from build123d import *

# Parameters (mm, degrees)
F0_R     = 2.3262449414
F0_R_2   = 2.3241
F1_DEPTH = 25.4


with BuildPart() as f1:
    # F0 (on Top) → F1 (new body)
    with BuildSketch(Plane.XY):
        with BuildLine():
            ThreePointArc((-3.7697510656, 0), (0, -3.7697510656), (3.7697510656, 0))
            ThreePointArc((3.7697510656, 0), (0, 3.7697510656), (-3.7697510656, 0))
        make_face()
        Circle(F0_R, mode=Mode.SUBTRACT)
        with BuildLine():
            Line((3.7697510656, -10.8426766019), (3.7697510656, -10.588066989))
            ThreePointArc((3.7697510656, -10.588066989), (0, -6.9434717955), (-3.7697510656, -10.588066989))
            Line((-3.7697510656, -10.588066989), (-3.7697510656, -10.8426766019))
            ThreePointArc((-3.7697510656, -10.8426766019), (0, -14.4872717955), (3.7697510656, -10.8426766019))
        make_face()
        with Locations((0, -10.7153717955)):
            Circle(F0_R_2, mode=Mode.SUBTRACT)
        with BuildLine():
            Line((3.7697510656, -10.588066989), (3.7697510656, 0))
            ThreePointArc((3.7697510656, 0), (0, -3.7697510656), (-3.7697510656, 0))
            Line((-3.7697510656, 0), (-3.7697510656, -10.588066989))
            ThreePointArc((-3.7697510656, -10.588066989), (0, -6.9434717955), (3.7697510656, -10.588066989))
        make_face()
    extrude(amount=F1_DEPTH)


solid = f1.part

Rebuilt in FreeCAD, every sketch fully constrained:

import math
import FreeCAD as App
import Part
import Sketcher

V = App.Vector
Q = App.Units.Quantity

doc = App.newDocument("Part")
body = doc.addObject("PartDesign::Body", "Body")

# Sketch on XY plane
sketch1 = body.newObject("Sketcher::SketchObject", "Sketch")
sketch1.AttachmentSupport = (doc.getObject("XY_Plane"), [""])
sketch1.MapMode = "FlatFace"
sketch1.addGeometry([
    Part.ArcOfCircle(Part.Circle(V(0, 0, 0), V(0, 0, 1), 3.769751), math.radians(0), math.radians(180)),  # 0
    Part.LineSegment(V(-3.769751, 0, 0), V(-3.769751, -10.842677, 0)),  # 1
    Part.ArcOfCircle(Part.Circle(V(0, -10.715372, 0), V(0, 0, 1), 3.7719), math.radians(-178.065852), math.radians(-1.934148)),  # 2
    Part.LineSegment(V(3.769751, -10.842677, 0), V(3.769751, 0, 0)),  # 3
    Part.Circle(V(0, 0, 0), V(0, 0, 1), 2.326245),  # 4
    Part.Circle(V(0, -10.715372, 0), V(0, 0, 1), 2.3241),  # 5
], False)
sketch1.addConstraint([
    Sketcher.Constraint("Tangent", 0, 2, 1, 1),
    Sketcher.Constraint("Coincident", 1, 2, 2, 1),
    Sketcher.Constraint("Coincident", 2, 2, 3, 1),
    Sketcher.Constraint("Tangent", 3, 2, 0, 1),
    Sketcher.Constraint("Vertical", 1),
    Sketcher.Constraint("Vertical", 3),
    Sketcher.Constraint("Coincident", 0, 3, -1, 1),
    Sketcher.Constraint("Coincident", 4, 3, -1, 1),
    Sketcher.Constraint("Coincident", 5, 3, 2, 3),
    Sketcher.Constraint("PointOnObject", 2, 3, -2),
    Sketcher.Constraint("Diameter", 5, Q("0.183 in")),
    Sketcher.Constraint("Radius", 2, Q("0.1485 in")),
    Sketcher.Constraint("Diameter", 4, Q("4.65249 mm")),
    Sketcher.Constraint("Radius", 0, Q("3.769751 mm")),
    Sketcher.Constraint("DistanceY", 1, 2, 1, 1, Q("10.842677 mm")),
])
pad1 = body.newObject("PartDesign::Pad", "Pad")
pad1.Profile = sketch1
pad1.Length = Q("1 in")

doc.recompute()
